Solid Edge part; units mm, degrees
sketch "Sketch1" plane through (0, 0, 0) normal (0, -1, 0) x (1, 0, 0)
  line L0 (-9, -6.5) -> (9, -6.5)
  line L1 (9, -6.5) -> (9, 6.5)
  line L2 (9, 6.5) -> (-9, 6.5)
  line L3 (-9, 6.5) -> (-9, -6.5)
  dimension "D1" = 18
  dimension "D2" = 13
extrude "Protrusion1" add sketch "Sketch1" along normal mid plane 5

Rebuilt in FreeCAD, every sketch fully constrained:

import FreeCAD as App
import Part
import Sketcher
from FreeCAD import Vector
Q = App.Units.Quantity

doc = App.newDocument("Part")
body = doc.addObject("PartDesign::Body", "Body")

sketch1 = body.newObject("Sketcher::SketchObject", "Sketch")
sketch1.AttachmentSupport = (doc.getObject("XZ_Plane"), [""])
sketch1.MapMode = "FlatFace"
sketch1.addGeometry([
    Part.LineSegment(Vector(-9, 6, 0), Vector(-9, -6, 0)),
    Part.LineSegment(Vector(-9, -6, 0), Vector(9, -6, 0)),
    Part.LineSegment(Vector(9, -6, 0), Vector(9, 6, 0)),
    Part.LineSegment(Vector(9, 6, 0), Vector(-9, 6, 0)),
], False)
sketch1.addConstraint([
    Sketcher.Constraint("Coincident", 0, 2, 1, 1),
    Sketcher.Constraint("Coincident", 1, 2, 2, 1),
    Sketcher.Constraint("Coincident", 2, 2, 3, 1),
    Sketcher.Constraint("Coincident", 3, 2, 0, 1),
    Sketcher.Constraint("Vertical", 0),
    Sketcher.Constraint("Horizontal", 1),
    Sketcher.Constraint("Vertical", 2),
    Sketcher.Constraint("Horizontal", 3),
    Sketcher.Constraint("Symmetric", 0, 2, 2, 2, -1, 1),
    Sketcher.Constraint("DistanceX", 0, 2, -1, 1, Q("9 mm")),
    Sketcher.Constraint("DistanceY", 0, 2, 0, 1, Q("13 mm")),
])
pad1 = body.newObject("PartDesign::Pad", "Pad")
pad1.Profile = sketch1
pad1.Length = 5
pad1.Midplane = True

doc.recompute()
